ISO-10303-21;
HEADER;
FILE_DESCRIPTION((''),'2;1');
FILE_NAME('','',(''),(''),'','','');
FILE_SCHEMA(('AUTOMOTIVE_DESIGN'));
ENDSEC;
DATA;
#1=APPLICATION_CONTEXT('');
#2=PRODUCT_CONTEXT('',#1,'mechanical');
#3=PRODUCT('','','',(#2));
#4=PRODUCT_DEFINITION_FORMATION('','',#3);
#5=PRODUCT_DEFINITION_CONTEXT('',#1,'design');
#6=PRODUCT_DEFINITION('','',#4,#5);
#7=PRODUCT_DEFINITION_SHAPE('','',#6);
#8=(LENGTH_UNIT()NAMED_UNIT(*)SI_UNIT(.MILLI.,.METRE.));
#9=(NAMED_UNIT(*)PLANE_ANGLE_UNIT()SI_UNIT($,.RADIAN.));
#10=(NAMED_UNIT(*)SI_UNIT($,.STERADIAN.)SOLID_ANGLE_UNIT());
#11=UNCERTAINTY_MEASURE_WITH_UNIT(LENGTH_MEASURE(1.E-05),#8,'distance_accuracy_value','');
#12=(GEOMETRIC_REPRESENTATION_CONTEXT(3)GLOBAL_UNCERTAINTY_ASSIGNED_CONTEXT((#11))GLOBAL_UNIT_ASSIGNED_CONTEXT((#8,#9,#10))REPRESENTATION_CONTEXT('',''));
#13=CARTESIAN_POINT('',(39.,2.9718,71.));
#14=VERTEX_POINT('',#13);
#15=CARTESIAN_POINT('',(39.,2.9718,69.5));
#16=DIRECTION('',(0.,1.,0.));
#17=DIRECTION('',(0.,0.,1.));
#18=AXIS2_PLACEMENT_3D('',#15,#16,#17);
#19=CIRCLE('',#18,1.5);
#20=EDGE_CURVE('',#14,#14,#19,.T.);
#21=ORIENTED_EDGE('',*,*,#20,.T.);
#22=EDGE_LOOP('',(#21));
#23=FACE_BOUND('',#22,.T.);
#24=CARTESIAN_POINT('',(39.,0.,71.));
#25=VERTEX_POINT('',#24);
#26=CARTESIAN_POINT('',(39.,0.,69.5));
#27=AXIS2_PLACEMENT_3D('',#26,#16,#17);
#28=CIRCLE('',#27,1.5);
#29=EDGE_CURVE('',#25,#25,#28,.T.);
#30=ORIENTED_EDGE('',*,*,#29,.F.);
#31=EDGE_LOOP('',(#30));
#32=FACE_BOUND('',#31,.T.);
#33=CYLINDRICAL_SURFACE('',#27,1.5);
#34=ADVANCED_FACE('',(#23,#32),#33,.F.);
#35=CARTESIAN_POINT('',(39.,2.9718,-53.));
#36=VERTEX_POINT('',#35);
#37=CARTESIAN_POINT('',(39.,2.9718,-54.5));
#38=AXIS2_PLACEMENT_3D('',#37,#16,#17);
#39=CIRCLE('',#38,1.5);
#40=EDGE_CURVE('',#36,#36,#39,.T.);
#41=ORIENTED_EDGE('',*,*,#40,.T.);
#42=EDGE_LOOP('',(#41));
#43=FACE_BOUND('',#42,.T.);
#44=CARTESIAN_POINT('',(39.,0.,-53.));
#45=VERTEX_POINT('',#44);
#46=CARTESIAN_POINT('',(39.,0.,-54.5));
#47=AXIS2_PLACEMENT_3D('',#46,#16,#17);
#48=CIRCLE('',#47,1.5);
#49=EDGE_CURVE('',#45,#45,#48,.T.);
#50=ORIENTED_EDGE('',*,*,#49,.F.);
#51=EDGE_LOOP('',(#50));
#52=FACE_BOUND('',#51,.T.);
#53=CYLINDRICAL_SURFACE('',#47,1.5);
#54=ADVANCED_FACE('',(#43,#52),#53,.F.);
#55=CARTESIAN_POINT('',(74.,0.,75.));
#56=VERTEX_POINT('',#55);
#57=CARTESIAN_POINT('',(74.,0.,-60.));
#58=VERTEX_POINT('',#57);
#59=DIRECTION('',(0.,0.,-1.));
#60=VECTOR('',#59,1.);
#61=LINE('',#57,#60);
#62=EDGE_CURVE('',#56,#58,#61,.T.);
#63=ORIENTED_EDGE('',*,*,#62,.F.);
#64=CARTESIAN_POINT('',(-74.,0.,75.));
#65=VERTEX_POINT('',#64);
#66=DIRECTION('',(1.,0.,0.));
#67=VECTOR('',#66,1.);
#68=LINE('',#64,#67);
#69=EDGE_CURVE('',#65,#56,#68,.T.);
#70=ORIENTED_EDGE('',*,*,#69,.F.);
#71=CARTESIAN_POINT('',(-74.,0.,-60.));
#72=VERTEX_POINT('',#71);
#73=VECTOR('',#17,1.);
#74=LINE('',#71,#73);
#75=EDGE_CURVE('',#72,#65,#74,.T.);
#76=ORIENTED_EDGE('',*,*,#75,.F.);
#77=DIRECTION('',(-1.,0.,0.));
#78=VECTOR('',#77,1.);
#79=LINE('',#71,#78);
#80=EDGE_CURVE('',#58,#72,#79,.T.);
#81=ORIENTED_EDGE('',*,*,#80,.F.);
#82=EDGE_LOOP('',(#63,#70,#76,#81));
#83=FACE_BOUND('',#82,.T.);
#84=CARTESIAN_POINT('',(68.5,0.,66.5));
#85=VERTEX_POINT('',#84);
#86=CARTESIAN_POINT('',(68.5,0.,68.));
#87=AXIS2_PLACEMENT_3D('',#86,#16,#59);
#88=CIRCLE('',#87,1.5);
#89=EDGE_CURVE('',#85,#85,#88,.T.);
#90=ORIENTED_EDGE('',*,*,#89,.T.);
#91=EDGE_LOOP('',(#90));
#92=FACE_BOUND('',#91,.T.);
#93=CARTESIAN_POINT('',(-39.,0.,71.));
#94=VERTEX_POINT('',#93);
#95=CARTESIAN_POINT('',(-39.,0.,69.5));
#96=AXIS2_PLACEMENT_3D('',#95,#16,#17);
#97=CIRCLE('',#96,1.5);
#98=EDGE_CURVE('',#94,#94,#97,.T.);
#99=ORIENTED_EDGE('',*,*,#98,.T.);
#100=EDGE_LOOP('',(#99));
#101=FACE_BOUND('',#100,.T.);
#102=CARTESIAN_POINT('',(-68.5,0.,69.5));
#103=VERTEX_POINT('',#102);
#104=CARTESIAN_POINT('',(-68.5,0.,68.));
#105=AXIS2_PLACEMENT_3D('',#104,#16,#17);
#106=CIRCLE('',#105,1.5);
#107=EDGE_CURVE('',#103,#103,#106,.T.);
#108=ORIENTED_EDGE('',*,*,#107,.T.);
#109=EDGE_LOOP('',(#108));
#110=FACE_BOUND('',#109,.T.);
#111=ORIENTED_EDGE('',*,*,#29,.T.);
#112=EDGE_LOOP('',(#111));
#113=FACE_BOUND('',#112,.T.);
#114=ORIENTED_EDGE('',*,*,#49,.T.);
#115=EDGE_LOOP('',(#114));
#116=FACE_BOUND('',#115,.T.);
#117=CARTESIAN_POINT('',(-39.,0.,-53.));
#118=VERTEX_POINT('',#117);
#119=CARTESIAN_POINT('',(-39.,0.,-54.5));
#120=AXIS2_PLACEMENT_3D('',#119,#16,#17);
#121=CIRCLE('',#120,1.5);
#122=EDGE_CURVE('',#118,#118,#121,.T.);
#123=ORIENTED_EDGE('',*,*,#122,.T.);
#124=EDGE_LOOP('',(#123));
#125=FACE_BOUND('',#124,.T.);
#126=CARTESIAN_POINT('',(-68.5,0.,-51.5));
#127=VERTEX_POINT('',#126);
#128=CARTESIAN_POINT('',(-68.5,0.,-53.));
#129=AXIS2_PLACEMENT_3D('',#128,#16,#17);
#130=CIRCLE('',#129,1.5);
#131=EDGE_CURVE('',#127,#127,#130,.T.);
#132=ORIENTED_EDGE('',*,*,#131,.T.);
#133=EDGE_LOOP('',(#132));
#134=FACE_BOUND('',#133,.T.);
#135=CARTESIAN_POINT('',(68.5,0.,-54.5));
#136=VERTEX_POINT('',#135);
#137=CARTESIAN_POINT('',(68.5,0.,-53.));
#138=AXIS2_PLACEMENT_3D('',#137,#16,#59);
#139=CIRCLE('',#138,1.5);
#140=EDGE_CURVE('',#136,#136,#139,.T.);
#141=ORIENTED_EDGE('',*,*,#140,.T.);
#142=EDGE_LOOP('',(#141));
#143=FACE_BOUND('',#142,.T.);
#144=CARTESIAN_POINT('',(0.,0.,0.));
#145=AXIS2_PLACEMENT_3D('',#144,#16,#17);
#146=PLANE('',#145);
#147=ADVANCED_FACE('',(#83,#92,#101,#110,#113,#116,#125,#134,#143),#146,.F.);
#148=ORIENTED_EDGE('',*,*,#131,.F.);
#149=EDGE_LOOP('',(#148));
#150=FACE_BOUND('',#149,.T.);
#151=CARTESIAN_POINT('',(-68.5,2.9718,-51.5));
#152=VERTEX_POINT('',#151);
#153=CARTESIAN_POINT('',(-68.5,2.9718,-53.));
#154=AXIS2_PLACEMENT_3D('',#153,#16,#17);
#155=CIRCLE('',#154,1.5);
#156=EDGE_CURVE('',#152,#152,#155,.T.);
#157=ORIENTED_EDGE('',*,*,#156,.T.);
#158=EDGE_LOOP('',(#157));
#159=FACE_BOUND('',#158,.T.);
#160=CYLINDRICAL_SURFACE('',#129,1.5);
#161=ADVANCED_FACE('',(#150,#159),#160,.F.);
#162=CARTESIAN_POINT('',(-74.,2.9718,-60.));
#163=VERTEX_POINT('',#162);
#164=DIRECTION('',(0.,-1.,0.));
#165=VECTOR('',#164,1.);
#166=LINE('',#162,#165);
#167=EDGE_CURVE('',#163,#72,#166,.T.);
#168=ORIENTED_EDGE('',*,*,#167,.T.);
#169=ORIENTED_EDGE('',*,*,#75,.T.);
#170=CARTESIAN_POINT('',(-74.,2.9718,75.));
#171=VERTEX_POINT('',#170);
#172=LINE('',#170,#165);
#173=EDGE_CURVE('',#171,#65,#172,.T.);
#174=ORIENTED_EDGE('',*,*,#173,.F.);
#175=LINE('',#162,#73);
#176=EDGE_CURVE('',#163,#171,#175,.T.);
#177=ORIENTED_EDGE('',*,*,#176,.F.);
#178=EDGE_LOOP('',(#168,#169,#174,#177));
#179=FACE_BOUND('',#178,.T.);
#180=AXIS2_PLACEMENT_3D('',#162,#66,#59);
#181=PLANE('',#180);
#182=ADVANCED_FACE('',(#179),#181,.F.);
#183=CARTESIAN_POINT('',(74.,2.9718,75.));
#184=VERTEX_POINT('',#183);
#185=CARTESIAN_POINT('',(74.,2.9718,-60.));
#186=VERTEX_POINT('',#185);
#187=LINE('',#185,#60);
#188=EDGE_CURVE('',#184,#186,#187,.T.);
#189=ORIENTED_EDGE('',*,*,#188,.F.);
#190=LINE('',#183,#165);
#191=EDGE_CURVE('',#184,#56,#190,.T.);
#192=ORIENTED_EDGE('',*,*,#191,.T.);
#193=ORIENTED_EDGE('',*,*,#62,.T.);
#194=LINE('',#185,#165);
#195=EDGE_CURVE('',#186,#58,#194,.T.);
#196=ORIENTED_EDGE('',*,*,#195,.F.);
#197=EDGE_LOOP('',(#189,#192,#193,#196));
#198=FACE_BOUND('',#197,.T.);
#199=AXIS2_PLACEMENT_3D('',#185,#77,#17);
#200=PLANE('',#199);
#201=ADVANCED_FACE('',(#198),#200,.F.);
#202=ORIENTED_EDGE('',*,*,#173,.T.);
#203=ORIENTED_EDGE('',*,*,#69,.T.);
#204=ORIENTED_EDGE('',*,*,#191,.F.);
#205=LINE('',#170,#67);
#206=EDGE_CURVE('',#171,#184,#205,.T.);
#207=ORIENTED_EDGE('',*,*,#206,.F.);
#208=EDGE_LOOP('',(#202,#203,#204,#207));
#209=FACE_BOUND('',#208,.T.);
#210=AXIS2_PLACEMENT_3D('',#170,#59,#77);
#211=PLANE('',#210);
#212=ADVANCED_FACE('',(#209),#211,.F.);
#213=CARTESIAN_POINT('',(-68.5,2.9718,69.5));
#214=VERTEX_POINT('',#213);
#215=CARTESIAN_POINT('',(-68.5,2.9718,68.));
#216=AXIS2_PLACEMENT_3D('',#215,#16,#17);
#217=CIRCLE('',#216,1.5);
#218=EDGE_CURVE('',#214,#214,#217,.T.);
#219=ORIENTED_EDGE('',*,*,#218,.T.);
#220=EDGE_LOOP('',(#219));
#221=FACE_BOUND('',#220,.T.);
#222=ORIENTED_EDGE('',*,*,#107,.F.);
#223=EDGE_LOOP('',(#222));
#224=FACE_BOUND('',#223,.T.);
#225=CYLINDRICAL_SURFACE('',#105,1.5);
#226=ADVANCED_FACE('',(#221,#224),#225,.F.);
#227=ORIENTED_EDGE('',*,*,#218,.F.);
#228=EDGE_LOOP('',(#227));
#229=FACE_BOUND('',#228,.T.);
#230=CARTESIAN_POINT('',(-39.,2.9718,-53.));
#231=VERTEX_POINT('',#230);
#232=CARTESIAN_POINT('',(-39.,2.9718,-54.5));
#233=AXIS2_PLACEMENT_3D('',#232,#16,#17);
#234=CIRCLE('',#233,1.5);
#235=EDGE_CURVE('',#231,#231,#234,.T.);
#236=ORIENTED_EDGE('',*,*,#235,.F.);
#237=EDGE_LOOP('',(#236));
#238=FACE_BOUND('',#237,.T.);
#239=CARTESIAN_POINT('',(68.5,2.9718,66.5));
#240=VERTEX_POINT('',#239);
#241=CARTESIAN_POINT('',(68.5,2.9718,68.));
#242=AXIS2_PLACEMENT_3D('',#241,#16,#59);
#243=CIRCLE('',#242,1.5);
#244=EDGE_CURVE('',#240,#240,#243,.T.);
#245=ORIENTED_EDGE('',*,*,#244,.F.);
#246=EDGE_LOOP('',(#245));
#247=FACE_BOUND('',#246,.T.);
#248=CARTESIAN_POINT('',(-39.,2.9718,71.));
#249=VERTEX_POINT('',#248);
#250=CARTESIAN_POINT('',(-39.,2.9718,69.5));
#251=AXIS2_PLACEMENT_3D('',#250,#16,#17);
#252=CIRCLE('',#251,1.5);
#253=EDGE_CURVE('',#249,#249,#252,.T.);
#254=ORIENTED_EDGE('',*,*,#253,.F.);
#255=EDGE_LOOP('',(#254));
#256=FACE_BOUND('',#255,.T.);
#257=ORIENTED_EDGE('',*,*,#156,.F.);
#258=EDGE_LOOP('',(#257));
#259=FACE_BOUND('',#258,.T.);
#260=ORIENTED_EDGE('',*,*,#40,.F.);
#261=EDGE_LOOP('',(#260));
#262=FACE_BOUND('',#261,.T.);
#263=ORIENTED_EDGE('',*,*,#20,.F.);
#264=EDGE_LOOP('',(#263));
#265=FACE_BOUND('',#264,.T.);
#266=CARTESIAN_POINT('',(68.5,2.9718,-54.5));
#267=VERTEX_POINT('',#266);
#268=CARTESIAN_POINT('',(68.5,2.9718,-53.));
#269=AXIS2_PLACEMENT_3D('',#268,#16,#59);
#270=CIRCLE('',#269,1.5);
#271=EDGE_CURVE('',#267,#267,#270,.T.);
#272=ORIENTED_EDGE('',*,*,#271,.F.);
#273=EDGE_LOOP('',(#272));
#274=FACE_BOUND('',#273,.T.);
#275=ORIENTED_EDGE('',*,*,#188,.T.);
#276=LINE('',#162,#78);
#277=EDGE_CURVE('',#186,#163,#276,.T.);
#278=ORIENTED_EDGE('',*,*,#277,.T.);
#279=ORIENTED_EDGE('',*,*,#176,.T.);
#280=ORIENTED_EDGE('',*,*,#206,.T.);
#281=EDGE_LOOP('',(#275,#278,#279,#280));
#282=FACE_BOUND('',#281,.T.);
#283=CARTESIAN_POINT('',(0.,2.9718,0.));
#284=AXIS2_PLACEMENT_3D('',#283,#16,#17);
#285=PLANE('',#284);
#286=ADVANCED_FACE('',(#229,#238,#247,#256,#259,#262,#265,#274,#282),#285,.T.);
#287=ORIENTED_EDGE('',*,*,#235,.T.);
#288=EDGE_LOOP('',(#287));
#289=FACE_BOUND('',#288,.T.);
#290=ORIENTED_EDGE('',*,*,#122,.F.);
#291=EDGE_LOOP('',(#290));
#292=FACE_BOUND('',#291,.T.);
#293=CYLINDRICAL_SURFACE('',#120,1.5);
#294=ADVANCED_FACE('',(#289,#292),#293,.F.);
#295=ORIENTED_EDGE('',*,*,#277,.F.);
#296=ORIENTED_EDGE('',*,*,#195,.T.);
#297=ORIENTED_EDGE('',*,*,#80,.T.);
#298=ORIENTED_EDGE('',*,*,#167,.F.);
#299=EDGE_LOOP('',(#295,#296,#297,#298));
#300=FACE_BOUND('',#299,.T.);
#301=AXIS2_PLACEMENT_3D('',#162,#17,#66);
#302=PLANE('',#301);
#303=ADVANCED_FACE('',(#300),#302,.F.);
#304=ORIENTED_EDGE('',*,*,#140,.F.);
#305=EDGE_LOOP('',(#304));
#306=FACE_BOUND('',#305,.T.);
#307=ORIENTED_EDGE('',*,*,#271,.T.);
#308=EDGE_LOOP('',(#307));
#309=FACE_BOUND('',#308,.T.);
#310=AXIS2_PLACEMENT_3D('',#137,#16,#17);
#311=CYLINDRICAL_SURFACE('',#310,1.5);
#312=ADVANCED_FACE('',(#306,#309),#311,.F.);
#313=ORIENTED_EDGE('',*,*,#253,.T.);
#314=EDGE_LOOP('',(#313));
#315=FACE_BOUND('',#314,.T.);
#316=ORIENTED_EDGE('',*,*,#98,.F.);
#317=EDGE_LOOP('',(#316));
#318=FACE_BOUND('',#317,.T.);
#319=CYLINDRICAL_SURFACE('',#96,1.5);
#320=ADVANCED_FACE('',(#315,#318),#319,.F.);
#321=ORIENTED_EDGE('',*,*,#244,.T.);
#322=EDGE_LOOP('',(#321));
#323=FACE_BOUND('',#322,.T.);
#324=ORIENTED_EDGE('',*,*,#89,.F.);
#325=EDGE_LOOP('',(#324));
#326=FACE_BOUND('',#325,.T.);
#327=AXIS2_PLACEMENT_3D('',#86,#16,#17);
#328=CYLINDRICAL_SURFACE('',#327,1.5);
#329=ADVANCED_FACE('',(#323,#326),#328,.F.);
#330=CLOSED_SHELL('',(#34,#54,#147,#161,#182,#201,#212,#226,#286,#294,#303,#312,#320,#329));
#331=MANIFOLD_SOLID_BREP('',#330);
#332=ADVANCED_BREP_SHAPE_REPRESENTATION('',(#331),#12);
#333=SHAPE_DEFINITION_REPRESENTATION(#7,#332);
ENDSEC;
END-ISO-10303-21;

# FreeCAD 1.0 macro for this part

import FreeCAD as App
import Part
import Sketcher

V = App.Vector


def add_polygon(sketch, points):
    """Adds a closed chain of lines whose ends are joined by coincident constraints."""
    first, n = sketch.GeometryCount, len(points)
    for a, b in zip(points, points[1:] + points[:1]):
        sketch.addGeometry(Part.LineSegment(App.Vector(*a, 0), App.Vector(*b, 0)), False)
    for i in range(n):
        sketch.addConstraint(Sketcher.Constraint("Coincident", first + i, 2, first + (i + 1) % n, 1))

doc = App.newDocument("Part")
body = doc.addObject("PartDesign::Body", "Body")

# Sketch on XZ plane
sketch1 = doc.addObject("Sketcher::SketchObject", "Sketch")
body.addObject(sketch1)
sketch1.AttachmentSupport = (doc.XZ_Plane, [""])
sketch1.MapMode = "FlatFace"
add_polygon(sketch1, [(-74, -60), (-74, 75), (74, 75), (74, -60)])  # lines 0-3
sketch1.addConstraint([
    Sketcher.Constraint("Vertical", 0),
    Sketcher.Constraint("Horizontal", 1),
    Sketcher.Constraint("Vertical", 2),
    Sketcher.Constraint("Horizontal", 3),
    Sketcher.Constraint("DistanceX", 1, 1, 1, 2, 148.0),
    Sketcher.Constraint("DistanceY", 0, 1, 0, 2, 135.0),
    Sketcher.Constraint("DistanceX", 0, 2, -1, 1, 74.0),
    Sketcher.Constraint("DistanceY", -1, 1, 0, 2, 75.0),
])
pad1 = doc.addObject("PartDesign::Pad", "Pad")
body.addObject(pad1)
pad1.Profile = sketch1
pad1.Length = 2.9718
pad1.Reversed = True

# Sketch on XZ plane
sketch2 = doc.addObject("Sketcher::SketchObject", "Sketch001")
body.addObject(sketch2)
sketch2.AttachmentSupport = (doc.XZ_Plane, [""])
sketch2.MapMode = "FlatFace"
sketch2.AttachmentOffset = App.Placement(V(0, 0, -2.9718), App.Rotation())
sketch2.addGeometry([
    Part.Circle(V(-68.5, -53, 0), V(0, 0, 1), 1.5),  # 0
    Part.Circle(V(-68.5, 68, 0), V(0, 0, 1), 1.5),  # 1
    Part.Circle(V(68.5, 68, 0), V(0, 0, 1), 1.5),  # 2
    Part.Circle(V(68.5, -53, 0), V(0, 0, 1), 1.5),  # 3
    Part.Circle(V(-39, -54.5, 0), V(0, 0, 1), 1.5),  # 4
    Part.Circle(V(39, -54.5, 0), V(0, 0, 1), 1.5),  # 5
    Part.Circle(V(-39, 69.5, 0), V(0, 0, 1), 1.5),  # 6
    Part.Circle(V(39, 69.5, 0), V(0, 0, 1), 1.5),  # 7
], False)
sketch2.addConstraint([
    Sketcher.Constraint("Equal", 0, 1),
    Sketcher.Constraint("Equal", 1, 2),
    Sketcher.Constraint("Equal", 2, 3),
    Sketcher.Constraint("Equal", 3, 4),
    Sketcher.Constraint("Equal", 4, 5),
    Sketcher.Constraint("Equal", 5, 6),
    Sketcher.Constraint("Equal", 6, 7),
    Sketcher.Constraint("Symmetric", 1, 3, 2, 3, -2),
    Sketcher.Constraint("Symmetric", 0, 3, 3, 3, -2),
    Sketcher.Constraint("Symmetric", 4, 3, 5, 3, -2),
    Sketcher.Constraint("Symmetric", 6, 3, 7, 3, -2),
    Sketcher.Constraint("Vertical", 0, 3, 1, 3),
    Sketcher.Constraint("Vertical", 4, 3, 6, 3),
    Sketcher.Constraint("Diameter", 0, 3.0),
    Sketcher.Constraint("DistanceY", 0, 3, -1, 1, 53.0),
    Sketcher.Constraint("DistanceY", -1, 1, 1, 3, 68.0),
    Sketcher.Constraint("DistanceX", 4, 3, -1, 1, 39.0),
    Sketcher.Constraint("DistanceX", 1, 3, 2, 3, 137.0),
    Sketcher.Constraint("DistanceY", 4, 3, 6, 3, 124.0),
    Sketcher.Constraint("DistanceY", 4, 3, -1, 1, 54.5),
])
pocket1 = doc.addObject("PartDesign::Pocket", "Pocket")
body.addObject(pocket1)
pocket1.Profile = sketch2
pocket1.Type = "ThroughAll"
pocket1.Reversed = True

doc.recompute()
